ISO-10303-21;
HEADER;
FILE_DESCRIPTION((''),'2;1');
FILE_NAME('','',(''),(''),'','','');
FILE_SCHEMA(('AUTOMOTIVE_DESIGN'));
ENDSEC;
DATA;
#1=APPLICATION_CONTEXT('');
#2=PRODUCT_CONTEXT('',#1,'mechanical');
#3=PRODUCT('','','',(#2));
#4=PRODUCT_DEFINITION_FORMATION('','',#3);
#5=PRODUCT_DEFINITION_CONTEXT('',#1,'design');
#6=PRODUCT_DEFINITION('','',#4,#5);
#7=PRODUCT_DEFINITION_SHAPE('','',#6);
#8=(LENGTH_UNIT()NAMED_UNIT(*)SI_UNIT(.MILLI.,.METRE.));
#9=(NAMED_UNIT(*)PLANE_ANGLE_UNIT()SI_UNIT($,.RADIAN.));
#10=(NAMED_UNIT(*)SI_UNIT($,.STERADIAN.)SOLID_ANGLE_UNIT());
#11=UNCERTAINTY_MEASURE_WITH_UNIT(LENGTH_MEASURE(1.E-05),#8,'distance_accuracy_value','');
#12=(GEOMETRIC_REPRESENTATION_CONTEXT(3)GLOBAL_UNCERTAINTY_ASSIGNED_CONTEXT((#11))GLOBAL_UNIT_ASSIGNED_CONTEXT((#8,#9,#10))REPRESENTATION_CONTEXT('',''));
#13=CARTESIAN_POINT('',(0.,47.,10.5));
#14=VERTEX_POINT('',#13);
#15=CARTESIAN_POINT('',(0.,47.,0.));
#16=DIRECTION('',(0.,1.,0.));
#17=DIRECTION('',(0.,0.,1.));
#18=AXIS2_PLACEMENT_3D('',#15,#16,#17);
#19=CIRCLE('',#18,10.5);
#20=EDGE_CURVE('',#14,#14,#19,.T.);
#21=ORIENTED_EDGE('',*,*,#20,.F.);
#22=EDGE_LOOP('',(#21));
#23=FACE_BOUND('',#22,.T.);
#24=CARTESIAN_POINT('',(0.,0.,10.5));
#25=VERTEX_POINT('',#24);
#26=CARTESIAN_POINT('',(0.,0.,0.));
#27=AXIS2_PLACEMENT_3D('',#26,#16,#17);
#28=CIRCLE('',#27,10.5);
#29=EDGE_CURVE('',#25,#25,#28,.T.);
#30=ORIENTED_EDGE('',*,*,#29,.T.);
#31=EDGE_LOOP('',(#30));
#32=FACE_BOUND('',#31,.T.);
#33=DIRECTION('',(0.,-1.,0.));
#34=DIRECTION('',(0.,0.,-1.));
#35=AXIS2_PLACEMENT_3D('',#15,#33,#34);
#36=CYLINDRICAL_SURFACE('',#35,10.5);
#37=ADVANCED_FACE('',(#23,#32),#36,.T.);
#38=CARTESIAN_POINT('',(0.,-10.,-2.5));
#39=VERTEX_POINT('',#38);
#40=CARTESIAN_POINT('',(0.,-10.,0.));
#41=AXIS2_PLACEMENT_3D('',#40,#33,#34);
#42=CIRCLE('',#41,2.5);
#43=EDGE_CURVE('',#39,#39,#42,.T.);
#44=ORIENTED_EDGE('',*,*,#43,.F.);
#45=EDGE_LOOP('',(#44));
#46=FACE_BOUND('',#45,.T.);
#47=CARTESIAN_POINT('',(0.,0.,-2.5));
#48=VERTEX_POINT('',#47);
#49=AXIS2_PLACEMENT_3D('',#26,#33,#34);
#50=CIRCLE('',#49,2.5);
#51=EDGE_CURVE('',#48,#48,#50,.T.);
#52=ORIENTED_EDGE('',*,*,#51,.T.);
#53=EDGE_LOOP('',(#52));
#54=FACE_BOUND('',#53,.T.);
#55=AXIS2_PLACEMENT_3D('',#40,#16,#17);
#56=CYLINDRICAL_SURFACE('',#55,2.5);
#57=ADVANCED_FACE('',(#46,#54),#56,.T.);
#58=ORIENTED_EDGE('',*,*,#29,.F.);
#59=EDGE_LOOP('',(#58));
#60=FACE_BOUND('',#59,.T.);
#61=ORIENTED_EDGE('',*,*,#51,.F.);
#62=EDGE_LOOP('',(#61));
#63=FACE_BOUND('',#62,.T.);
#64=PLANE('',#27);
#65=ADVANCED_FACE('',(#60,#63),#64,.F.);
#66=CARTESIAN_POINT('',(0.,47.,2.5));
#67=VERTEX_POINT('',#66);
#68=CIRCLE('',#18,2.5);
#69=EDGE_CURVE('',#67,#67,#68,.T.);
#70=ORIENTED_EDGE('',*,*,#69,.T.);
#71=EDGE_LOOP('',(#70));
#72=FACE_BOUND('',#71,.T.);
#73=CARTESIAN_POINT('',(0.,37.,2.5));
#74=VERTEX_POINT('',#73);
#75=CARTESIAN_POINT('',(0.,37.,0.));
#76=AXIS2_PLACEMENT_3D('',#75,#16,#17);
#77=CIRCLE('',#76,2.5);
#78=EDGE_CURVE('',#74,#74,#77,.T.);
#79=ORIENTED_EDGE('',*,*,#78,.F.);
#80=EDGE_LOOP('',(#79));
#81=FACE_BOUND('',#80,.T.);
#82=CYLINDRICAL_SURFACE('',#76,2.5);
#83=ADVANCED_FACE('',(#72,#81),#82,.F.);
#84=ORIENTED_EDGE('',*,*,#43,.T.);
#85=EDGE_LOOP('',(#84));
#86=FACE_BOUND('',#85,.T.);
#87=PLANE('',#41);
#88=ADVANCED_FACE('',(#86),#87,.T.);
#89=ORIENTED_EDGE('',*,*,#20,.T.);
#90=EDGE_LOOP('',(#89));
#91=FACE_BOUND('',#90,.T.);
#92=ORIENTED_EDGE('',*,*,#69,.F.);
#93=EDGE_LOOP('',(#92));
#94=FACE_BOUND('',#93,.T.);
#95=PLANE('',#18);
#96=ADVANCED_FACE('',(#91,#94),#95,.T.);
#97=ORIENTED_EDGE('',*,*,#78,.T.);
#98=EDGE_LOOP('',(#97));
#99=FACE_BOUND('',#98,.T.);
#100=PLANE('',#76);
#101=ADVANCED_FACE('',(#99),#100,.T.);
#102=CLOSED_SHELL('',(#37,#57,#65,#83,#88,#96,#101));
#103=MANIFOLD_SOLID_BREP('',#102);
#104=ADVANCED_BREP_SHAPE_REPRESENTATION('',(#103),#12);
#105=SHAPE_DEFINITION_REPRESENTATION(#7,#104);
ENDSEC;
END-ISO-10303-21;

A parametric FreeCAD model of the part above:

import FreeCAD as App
import Part
import Sketcher
Q = App.Units.Quantity

doc = App.newDocument("Part")
params = doc.addObject("Spreadsheet::Sheet", "Params")
for row, (alias, value) in enumerate([
    ("sketch1_diameter", "21 mm"),
    ("pad1_length", "47 mm"),
    ("sketch2_diameter", "5 mm"),
    ("pocket1_length", "10 mm"),
    ("sketch3_diameter", "5 mm"),
    ("pad2_length", "10 mm"),
], start=1):
    params.set(f"A{row}", alias)
    params.set(f"B{row}", "=" + value)
    params.setAlias(f"B{row}", alias)

body = doc.addObject("PartDesign::Body", "Body")

# Sketch on XZ plane
sketch1 = body.newObject("Sketcher::SketchObject", "Sketch")
sketch1.AttachmentSupport = (doc.getObject("XZ_Plane"), [""])
sketch1.MapMode = "FlatFace"
sketch1.addGeometry(Part.Circle(App.Vector(0, 0, 0), App.Vector(0, 0, 1), 10), False)
sketch1.addConstraint([
    Sketcher.Constraint("Coincident", 0, 3, -1, 1),
    Sketcher.Constraint("Diameter", 0, Q("21 mm")),
])
sketch1.setExpression("Constraints[1]", "Params.sketch1_diameter")
pad1 = body.newObject("PartDesign::Pad", "Pad")
pad1.Profile = sketch1
pad1.setExpression("Length", "Params.pad1_length")
pad1.Reversed = True

# Sketch on XZ plane
sketch2 = body.newObject("Sketcher::SketchObject", "Sketch001")
sketch2.AttachmentSupport = (doc.getObject("XZ_Plane"), [""])
sketch2.MapMode = "FlatFace"
sketch2.AttachmentOffset = App.Placement(App.Vector(0, 0, -47), App.Rotation())
sketch2.addGeometry(Part.Circle(App.Vector(0, 0, 0), App.Vector(0, 0, 1), 2.5), False)
sketch2.addConstraint([
    Sketcher.Constraint("Coincident", 0, 3, -1, 1),
    Sketcher.Constraint("Diameter", 0, Q("5 mm")),
])
sketch2.setExpression("Constraints[1]", "Params.sketch2_diameter")
pocket1 = body.newObject("PartDesign::Pocket", "Pocket")
pocket1.Profile = sketch2
pocket1.setExpression("Length", "Params.pocket1_length")
pocket1.Reversed = True

# Sketch on XZ plane
sketch3 = body.newObject("Sketcher::SketchObject", "Sketch002")
sketch3.AttachmentSupport = (doc.getObject("XZ_Plane"), [""])
sketch3.MapMode = "FlatFace"
sketch3.addGeometry(Part.Circle(App.Vector(0, 0, 0), App.Vector(0, 0, 1), 2.5), False)
sketch3.addConstraint([
    Sketcher.Constraint("Coincident", 0, 3, -1, 1),
    Sketcher.Constraint("Diameter", 0, Q("5 mm")),
])
sketch3.setExpression("Constraints[1]", "Params.sketch3_diameter")
pad2 = body.newObject("PartDesign::Pad", "Pad001")
pad2.Profile = sketch3
pad2.setExpression("Length", "Params.pad2_length")

doc.recompute()
